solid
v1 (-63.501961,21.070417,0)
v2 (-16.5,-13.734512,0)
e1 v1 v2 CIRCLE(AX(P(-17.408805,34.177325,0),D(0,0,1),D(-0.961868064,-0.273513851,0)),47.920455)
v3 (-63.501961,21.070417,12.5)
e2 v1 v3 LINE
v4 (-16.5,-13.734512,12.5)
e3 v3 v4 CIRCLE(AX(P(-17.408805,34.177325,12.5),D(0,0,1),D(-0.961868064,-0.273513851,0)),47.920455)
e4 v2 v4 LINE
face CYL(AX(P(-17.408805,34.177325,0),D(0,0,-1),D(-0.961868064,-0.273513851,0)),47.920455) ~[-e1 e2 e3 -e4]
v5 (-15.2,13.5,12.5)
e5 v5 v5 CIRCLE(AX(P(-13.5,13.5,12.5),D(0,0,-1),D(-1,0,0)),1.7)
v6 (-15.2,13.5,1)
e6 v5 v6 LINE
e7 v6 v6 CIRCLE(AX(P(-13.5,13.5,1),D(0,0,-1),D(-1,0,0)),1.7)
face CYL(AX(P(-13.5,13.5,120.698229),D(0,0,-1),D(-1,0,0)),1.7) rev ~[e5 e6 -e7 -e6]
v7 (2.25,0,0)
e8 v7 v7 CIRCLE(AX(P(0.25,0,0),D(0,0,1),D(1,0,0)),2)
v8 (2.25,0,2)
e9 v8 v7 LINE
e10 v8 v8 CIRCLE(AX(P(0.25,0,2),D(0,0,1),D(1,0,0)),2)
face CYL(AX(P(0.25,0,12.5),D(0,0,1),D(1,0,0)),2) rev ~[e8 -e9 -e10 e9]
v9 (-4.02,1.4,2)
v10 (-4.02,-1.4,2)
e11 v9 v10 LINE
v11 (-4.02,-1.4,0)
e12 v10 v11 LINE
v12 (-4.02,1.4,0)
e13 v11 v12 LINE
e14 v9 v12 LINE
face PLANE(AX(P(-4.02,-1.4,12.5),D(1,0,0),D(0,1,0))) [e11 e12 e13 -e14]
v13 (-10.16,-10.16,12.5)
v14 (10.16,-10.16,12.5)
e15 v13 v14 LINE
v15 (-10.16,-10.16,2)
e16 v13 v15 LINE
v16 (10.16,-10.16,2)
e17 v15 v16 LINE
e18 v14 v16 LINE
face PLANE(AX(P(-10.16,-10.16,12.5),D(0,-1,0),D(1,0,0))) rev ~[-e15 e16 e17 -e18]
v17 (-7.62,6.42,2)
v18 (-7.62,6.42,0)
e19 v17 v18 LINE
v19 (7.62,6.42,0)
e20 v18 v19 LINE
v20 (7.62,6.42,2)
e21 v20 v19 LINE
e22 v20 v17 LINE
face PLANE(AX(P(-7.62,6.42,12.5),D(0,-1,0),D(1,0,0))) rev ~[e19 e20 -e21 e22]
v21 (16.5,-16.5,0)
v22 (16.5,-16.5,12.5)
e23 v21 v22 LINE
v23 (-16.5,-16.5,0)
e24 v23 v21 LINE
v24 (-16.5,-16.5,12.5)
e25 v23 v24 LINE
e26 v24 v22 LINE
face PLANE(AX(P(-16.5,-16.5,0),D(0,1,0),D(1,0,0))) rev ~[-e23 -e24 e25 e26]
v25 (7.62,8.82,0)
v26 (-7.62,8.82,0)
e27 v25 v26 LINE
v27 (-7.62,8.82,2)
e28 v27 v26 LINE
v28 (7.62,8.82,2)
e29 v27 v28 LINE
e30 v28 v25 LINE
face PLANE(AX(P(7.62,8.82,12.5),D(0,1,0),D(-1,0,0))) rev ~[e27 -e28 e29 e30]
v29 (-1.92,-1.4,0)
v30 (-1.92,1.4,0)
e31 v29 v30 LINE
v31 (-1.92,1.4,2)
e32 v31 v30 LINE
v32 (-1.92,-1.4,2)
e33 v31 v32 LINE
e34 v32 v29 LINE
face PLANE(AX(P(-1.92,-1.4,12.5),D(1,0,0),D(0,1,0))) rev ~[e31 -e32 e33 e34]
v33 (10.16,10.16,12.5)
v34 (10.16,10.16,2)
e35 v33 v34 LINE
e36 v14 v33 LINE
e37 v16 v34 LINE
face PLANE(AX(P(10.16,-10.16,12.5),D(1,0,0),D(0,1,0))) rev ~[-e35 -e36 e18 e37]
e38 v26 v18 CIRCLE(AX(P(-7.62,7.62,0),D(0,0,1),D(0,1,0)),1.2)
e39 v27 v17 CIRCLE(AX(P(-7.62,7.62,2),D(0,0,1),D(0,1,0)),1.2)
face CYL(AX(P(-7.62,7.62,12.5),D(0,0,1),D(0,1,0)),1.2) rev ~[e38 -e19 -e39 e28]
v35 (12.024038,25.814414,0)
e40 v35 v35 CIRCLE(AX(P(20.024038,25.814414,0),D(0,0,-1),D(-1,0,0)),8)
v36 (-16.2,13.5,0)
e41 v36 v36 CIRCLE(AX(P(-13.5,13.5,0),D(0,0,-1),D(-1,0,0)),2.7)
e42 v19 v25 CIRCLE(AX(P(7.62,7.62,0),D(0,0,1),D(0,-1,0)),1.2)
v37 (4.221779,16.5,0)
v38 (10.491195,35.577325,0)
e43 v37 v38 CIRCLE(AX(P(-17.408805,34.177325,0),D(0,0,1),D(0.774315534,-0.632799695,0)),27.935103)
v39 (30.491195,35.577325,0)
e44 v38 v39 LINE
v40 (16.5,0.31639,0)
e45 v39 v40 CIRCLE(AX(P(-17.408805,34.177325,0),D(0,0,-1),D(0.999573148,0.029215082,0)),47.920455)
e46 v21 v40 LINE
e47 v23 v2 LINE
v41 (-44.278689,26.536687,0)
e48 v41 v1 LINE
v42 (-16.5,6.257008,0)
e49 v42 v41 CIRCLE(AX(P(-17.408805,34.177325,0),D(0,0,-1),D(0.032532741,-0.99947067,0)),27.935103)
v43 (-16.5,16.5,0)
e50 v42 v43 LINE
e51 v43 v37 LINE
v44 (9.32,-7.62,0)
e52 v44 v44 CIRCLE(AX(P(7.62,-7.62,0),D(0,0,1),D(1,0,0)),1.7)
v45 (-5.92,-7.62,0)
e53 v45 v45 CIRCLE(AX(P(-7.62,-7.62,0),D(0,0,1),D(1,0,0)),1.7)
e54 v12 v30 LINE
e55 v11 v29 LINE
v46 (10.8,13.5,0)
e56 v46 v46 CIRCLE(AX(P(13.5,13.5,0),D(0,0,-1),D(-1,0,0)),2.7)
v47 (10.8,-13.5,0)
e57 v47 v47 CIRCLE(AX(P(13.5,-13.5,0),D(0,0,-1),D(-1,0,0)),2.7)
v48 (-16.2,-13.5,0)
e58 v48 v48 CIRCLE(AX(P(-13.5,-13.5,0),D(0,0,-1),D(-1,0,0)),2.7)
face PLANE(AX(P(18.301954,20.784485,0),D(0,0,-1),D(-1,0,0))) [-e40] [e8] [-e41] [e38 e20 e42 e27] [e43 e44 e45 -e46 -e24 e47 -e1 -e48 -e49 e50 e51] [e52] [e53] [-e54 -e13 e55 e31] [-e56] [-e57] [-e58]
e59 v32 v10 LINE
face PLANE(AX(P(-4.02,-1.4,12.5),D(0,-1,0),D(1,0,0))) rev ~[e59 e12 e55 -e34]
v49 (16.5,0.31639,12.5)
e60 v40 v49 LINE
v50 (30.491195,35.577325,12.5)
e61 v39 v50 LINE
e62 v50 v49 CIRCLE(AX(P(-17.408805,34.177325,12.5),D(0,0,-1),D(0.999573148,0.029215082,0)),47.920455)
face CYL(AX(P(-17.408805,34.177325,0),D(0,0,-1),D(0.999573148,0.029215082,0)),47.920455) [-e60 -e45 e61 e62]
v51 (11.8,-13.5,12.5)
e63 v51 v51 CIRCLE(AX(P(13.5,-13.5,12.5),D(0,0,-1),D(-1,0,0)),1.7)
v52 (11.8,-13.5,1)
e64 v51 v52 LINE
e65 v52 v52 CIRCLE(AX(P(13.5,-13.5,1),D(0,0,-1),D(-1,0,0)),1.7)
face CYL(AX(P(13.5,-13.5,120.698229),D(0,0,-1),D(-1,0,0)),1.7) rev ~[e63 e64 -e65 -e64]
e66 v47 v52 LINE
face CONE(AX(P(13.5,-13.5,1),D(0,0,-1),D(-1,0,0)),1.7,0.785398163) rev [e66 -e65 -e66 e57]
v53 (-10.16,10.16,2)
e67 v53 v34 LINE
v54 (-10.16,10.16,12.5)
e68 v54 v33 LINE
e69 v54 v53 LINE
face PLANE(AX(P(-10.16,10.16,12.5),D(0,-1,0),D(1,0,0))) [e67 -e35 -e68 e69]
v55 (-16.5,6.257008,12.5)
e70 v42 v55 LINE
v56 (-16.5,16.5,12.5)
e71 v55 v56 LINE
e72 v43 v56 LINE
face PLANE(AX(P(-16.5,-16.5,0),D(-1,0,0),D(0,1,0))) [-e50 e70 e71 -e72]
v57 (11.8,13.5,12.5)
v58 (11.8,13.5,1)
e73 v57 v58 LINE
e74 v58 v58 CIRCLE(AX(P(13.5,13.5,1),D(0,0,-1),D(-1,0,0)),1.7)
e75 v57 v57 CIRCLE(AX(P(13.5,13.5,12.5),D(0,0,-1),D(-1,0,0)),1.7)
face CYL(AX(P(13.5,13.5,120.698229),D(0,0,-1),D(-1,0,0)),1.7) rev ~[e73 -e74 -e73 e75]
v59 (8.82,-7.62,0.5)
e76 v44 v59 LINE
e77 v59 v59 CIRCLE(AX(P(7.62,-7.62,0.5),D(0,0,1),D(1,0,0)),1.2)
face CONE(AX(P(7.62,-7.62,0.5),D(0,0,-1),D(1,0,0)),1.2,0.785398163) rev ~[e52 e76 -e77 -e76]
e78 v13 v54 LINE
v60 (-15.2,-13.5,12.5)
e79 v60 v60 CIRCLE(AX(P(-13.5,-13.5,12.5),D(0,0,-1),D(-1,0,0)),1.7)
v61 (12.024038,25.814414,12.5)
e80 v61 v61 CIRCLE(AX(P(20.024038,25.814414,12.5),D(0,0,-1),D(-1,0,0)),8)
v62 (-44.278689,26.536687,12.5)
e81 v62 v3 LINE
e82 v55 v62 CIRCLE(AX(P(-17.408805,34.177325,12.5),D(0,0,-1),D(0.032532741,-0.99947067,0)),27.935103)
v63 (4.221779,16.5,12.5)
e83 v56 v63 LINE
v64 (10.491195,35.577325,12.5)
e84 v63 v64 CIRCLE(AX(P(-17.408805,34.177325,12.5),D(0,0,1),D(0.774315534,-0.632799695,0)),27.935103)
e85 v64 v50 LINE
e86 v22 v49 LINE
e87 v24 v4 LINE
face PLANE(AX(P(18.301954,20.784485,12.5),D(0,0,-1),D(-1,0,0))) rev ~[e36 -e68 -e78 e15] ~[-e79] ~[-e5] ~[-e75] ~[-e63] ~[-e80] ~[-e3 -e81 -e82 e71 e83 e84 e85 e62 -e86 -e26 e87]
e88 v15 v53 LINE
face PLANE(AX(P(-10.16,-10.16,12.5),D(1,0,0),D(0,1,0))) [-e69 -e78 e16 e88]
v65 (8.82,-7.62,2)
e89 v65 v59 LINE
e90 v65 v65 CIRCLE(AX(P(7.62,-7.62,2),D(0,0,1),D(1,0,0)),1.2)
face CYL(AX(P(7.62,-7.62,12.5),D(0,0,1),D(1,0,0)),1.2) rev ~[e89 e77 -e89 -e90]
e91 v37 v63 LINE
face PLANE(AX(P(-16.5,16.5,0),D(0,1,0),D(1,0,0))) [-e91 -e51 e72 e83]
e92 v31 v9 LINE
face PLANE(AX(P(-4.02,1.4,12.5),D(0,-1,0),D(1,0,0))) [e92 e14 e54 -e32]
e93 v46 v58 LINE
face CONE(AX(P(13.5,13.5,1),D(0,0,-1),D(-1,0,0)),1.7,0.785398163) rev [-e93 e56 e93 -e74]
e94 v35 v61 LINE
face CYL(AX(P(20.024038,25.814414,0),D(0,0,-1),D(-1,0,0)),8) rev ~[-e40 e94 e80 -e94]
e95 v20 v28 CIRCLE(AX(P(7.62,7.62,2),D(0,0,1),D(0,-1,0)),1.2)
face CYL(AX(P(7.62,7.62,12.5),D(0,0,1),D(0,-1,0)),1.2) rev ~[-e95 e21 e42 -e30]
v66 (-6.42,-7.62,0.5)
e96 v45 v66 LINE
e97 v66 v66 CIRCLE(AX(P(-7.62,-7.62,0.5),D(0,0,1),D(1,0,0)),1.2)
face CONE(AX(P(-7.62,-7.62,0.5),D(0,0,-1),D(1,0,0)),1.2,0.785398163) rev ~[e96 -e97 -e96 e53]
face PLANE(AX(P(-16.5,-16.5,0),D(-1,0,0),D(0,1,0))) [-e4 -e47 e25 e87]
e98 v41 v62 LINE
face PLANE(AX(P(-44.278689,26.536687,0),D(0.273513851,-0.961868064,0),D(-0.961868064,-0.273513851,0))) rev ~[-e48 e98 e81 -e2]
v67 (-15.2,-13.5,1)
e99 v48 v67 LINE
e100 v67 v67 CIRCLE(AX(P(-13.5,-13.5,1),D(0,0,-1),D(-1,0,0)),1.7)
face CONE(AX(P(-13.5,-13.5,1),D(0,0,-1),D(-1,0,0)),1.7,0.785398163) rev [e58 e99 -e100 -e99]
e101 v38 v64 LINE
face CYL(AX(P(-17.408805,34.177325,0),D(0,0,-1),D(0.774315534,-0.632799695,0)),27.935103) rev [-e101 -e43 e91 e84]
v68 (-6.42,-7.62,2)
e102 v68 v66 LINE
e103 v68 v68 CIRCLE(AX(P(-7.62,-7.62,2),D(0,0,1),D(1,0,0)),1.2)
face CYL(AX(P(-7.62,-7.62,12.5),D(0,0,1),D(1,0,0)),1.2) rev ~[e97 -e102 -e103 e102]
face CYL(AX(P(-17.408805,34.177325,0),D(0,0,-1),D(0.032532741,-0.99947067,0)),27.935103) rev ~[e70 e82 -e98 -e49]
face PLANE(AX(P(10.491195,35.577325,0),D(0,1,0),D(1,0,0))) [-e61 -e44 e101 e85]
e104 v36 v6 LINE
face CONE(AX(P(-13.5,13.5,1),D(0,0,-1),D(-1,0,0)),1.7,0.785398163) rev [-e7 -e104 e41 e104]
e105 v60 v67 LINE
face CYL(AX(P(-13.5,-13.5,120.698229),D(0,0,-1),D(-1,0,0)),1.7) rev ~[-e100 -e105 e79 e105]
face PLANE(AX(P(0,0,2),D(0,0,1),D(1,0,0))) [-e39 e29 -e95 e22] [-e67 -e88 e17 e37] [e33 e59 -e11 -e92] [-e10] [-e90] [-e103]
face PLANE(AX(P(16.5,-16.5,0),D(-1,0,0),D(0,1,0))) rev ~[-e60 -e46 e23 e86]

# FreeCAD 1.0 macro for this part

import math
import FreeCAD as App
import Part
import Sketcher

V = App.Vector
Q = App.Units.Quantity


def edges_at(feature, points):
    """Names of the edges that pass closest to the given points."""
    edges = feature.Shape.Edges
    near = lambda p: min(range(len(edges)), key=lambda i: edges[i].distToShape(Part.Vertex(*p))[0])
    return sorted({f"Edge{near(p) + 1}" for p in points})


def add_polygon(sketch, points):
    """Adds a closed chain of lines whose ends are joined by coincident constraints."""
    first, n = sketch.GeometryCount, len(points)
    for a, b in zip(points, points[1:] + points[:1]):
        sketch.addGeometry(Part.LineSegment(App.Vector(*a, 0), App.Vector(*b, 0)), False)
    for i in range(n):
        sketch.addConstraint(Sketcher.Constraint("Coincident", first + i, 2, first + (i + 1) % n, 1))

doc = App.newDocument("Part")
body = doc.addObject("PartDesign::Body", "Body")

sketch1 = body.newObject("Sketcher::SketchObject", "Sketch")
sketch1.AttachmentSupport = (doc.getObject("XY_Plane"), [""])
sketch1.MapMode = "FlatFace"
add_polygon(sketch1, [(-16.5, 16.5), (-16.5, -16.5), (16.5, -16.5), (16.5, 16.5)])
sketch1.addConstraint(Sketcher.Constraint("Vertical", 0))
sketch1.addConstraint(Sketcher.Constraint("Horizontal", 1))
sketch1.addConstraint(Sketcher.Constraint("Vertical", 2))
sketch1.addConstraint(Sketcher.Constraint("Horizontal", 3))
sketch1.addConstraint(Sketcher.Constraint("Symmetric", 0, 2, 2, 2, -1, 1))
sketch1.addConstraint(Sketcher.Constraint("Equal", 3, 0))
sketch1.addConstraint(Sketcher.Constraint("DistanceX", 1, 1, 1, 2, Q("33 mm")))
pad1 = body.newObject("PartDesign::Pad", "Pad")
pad1.Profile = sketch1
pad1.Length = 12.5

sketch2 = body.newObject("Sketcher::SketchObject", "Sketch001")
sketch2.AttachmentSupport = (doc.getObject("XY_Plane"), [""])
sketch2.MapMode = "FlatFace"
sketch2.AttachmentOffset = App.Placement(V(0, 0, 12.5), App.Rotation())
sketch2.addGeometry(Part.Circle(V(0.25, 0, 0), V(0, 0, 1), 2), False)
add_polygon(sketch2, [(-4.02, 1.4), (-4.02, -1.4), (-1.92, -1.4), (-1.92, 1.4)])
sketch2.addConstraint(Sketcher.Constraint("Vertical", 1))
sketch2.addConstraint(Sketcher.Constraint("Horizontal", 2))
sketch2.addConstraint(Sketcher.Constraint("Vertical", 3))
sketch2.addConstraint(Sketcher.Constraint("Horizontal", 4))
sketch2.addConstraint(Sketcher.Constraint("PointOnObject", 0, 3, -1))
sketch2.addConstraint(Sketcher.Constraint("Diameter", 0, Q("4 mm")))
sketch2.addConstraint(Sketcher.Constraint("DistanceX", 2, 1, 2, 2, Q("2.1 mm")))
sketch2.addConstraint(Sketcher.Constraint("DistanceY", 1, 2, 1, 1, Q("2.8 mm")))
sketch2.addConstraint(Sketcher.Constraint("DistanceY", 1, 2, -1, 1, Q("1.4 mm")))
sketch2.addConstraint(Sketcher.Constraint("DistanceX", -1, 1, 0, 3, Q("0.25 mm")))
sketch2.addConstraint(Sketcher.Constraint("DistanceX", 1, 2, -1, 1, Q("4.02 mm")))
pocket1 = body.newObject("PartDesign::Pocket", "Pocket")
pocket1.Profile = sketch2
pocket1.Type = "ThroughAll"

sketch3 = body.newObject("Sketcher::SketchObject", "Sketch002")
sketch3.AttachmentSupport = (doc.getObject("XY_Plane"), [""])
sketch3.MapMode = "FlatFace"
sketch3.AttachmentOffset = App.Placement(V(0, 0, 12.5), App.Rotation())
sketch3.addGeometry(Part.LineSegment(V(7.62, 8.82, 0), V(-7.62, 8.82, 0)), False)
sketch3.addGeometry(Part.ArcOfCircle(Part.Circle(V(-7.62, 7.62, 0), V(0, 0, 1), 1.2), math.radians(90), math.radians(270)), False)
sketch3.addGeometry(Part.LineSegment(V(-7.62, 6.42, 0), V(7.62, 6.42, 0)), False)
sketch3.addGeometry(Part.ArcOfCircle(Part.Circle(V(7.62, 7.62, 0), V(0, 0, 1), 1.2), math.radians(-90), math.radians(90)), False)
sketch3.addGeometry(Part.Circle(V(7.62, -7.62, 0), V(0, 0, 1), 1.2), False)
sketch3.addGeometry(Part.Circle(V(-7.62, -7.62, 0), V(0, 0, 1), 1.2), False)
sketch3.addConstraint(Sketcher.Constraint("Tangent", 0, 2, 1, 1))
sketch3.addConstraint(Sketcher.Constraint("Tangent", 1, 2, 2, 1))
sketch3.addConstraint(Sketcher.Constraint("Tangent", 2, 2, 3, 1))
sketch3.addConstraint(Sketcher.Constraint("Tangent", 3, 2, 0, 1))
sketch3.addConstraint(Sketcher.Constraint("Horizontal", 0))
sketch3.addConstraint(Sketcher.Constraint("Horizontal", 2))
sketch3.addConstraint(Sketcher.Constraint("Equal", 3, 4))
sketch3.addConstraint(Sketcher.Constraint("Equal", 4, 5))
sketch3.addConstraint(Sketcher.Constraint("Symmetric", 1, 3, 4, 3, -1, 1))
sketch3.addConstraint(Sketcher.Constraint("Symmetric", 3, 3, 5, 3, -1, 1))
sketch3.addConstraint(Sketcher.Constraint("Vertical", 3, 3, 4, 3))
sketch3.addConstraint(Sketcher.Constraint("Diameter", 4, Q("2.4 mm")))
sketch3.addConstraint(Sketcher.Constraint("DistanceX", 0, 2, 0, 1, Q("15.24 mm")))
sketch3.addConstraint(Sketcher.Constraint("DistanceY", -1, 1, 1, 3, Q("7.62 mm")))
pocket2 = body.newObject("PartDesign::Pocket", "Pocket001")
pocket2.Profile = sketch3
pocket2.Type = "ThroughAll"

sketch4 = body.newObject("Sketcher::SketchObject", "Sketch003")
sketch4.AttachmentSupport = (doc.getObject("XY_Plane"), [""])
sketch4.MapMode = "FlatFace"
sketch4.AttachmentOffset = App.Placement(V(0, 0, 12.5), App.Rotation())
add_polygon(sketch4, [(-10.16, 10.16), (-10.16, -10.16), (10.16, -10.16), (10.16, 10.16)])
sketch4.addConstraint(Sketcher.Constraint("Vertical", 0))
sketch4.addConstraint(Sketcher.Constraint("Horizontal", 1))
sketch4.addConstraint(Sketcher.Constraint("Vertical", 2))
sketch4.addConstraint(Sketcher.Constraint("Horizontal", 3))
sketch4.addConstraint(Sketcher.Constraint("Symmetric", 0, 2, 2, 2, -1, 1))
sketch4.addConstraint(Sketcher.Constraint("Equal", 3, 0))
sketch4.addConstraint(Sketcher.Constraint("DistanceX", 1, 1, 1, 2, Q("20.32 mm")))
pocket3 = body.newObject("PartDesign::Pocket", "Pocket002")
pocket3.Profile = sketch4
pocket3.Length = 10.5

sketch5 = body.newObject("Sketcher::SketchObject", "Sketch004")
sketch5.AttachmentSupport = (doc.getObject("XY_Plane"), [""])
sketch5.MapMode = "FlatFace"
sketch5.addGeometry(Part.LineSegment(V(10.491195, 35.577325, 0), V(30.491195, 35.577325, 0)), False)
sketch5.addGeometry(Part.ArcOfCircle(Part.Circle(V(-17.408805, 34.177325, 0), V(0, 0, 1), 47.920455), math.radians(-44.959528), math.radians(1.674139)), False)
sketch5.addGeometry(Part.LineSegment(V(16.5, 0.31639, 0), V(16.5, 16.5, 0)), False)
sketch5.addGeometry(Part.LineSegment(V(16.5, 16.5, 0), V(4.221779, 16.5, 0)), False)
sketch5.addGeometry(Part.ArcOfCircle(Part.Circle(V(-17.408805, 34.177325, 0), V(0, 0, 1), 27.935103), math.radians(-39.256982), math.radians(2.872648)), False)
sketch5.addGeometry(Part.Circle(V(20.024038, 25.814414, 0), V(0, 0, 1), 8), False)
sketch5.addGeometry(Part.LineSegment(V(-63.501961, 21.070417, 0), V(-44.278689, 26.536687, 0)), False)
sketch5.addGeometry(Part.ArcOfCircle(Part.Circle(V(-17.408805, 34.177325, 0), V(0, 0, 1), 27.935103), math.radians(-164.126531), math.radians(-88.135682)), False)
sketch5.addGeometry(Part.LineSegment(V(-16.5, 6.257008, 0), V(-16.5, -13.734512, 0)), False)
sketch5.addGeometry(Part.ArcOfCircle(Part.Circle(V(-17.408805, 34.177325, 0), V(0, 0, 1), 47.920455), math.radians(-164.126531), math.radians(-88.913328)), False)
sketch5.addConstraint(Sketcher.Constraint("Coincident", 0, 2, 1, 2))
sketch5.addConstraint(Sketcher.Constraint("Coincident", 1, 1, 2, 1))
sketch5.addConstraint(Sketcher.Constraint("Coincident", 2, 2, 3, 1))
sketch5.addConstraint(Sketcher.Constraint("Coincident", 3, 2, 4, 1))
sketch5.addConstraint(Sketcher.Constraint("Coincident", 4, 2, 0, 1))
sketch5.addConstraint(Sketcher.Constraint("Coincident", 6, 2, 7, 1))
sketch5.addConstraint(Sketcher.Constraint("Coincident", 7, 2, 8, 1))
sketch5.addConstraint(Sketcher.Constraint("Coincident", 8, 2, 9, 2))
sketch5.addConstraint(Sketcher.Constraint("Coincident", 9, 1, 6, 1))
sketch5.addConstraint(Sketcher.Constraint("Horizontal", 0))
sketch5.addConstraint(Sketcher.Constraint("Vertical", 2))
sketch5.addConstraint(Sketcher.Constraint("Horizontal", 3))
sketch5.addConstraint(Sketcher.Constraint("Vertical", 8))
sketch5.addConstraint(Sketcher.Constraint("Coincident", 4, 3, 1, 3))
sketch5.addConstraint(Sketcher.Constraint("Coincident", 7, 3, 1, 3))
sketch5.addConstraint(Sketcher.Constraint("Coincident", 9, 3, 1, 3))
sketch5.addConstraint(Sketcher.Constraint("Equal", 4, 7))
sketch5.addConstraint(Sketcher.Constraint("Equal", 1, 9))
sketch5.addConstraint(Sketcher.Constraint("Diameter", 5, Q("16 mm")))
sketch5.addConstraint(Sketcher.Constraint("DistanceX", 0, 1, 0, 2, Q("20 mm")))
sketch5.addConstraint(Sketcher.Constraint("DistanceX", 8, 2, 1, 1, Q("33 mm")))
sketch5.addConstraint(Sketcher.Constraint("DistanceX", -1, 1, 1, 1, Q("16.5 mm")))
sketch5.addConstraint(Sketcher.Constraint("DistanceY", -1, 1, 2, 2, Q("16.5 mm")))
sketch5.addConstraint(Sketcher.Constraint("DistanceX", 4, 3, 0, 2, Q("47.9 mm")))
sketch5.addConstraint(Sketcher.Constraint("DistanceY", 4, 3, 0, 2, Q("1.4 mm")))
sketch5.addConstraint(Sketcher.Constraint("DistanceX", 3, 2, 3, 1, Q("12.278221 mm")))
sketch5.addConstraint(Sketcher.Constraint("DistanceY", 2, 1, 2, 2, Q("16.18361 mm")))
sketch5.addConstraint(Sketcher.Constraint("DistanceX", 6, 2, -1, 1, Q("44.278689 mm")))
sketch5.addConstraint(Sketcher.Constraint("DistanceX", 9, 1, -1, 1, Q("63.501961 mm")))
sketch5.addConstraint(Sketcher.Constraint("DistanceY", 5, 3, 4, 3, Q("8.362911 mm")))
sketch5.addConstraint(Sketcher.Constraint("DistanceX", 3, 2, 5, 3, Q("15.802259 mm")))
pad2 = body.newObject("PartDesign::Pad", "Pad001")
pad2.Profile = sketch5
pad2.Length = 12.5

sketch6 = body.newObject("Sketcher::SketchObject", "Sketch005")
sketch6.AttachmentSupport = (doc.getObject("XY_Plane"), [""])
sketch6.MapMode = "FlatFace"
sketch6.AttachmentOffset = App.Placement(V(0, 0, 12.5), App.Rotation())
sketch6.addGeometry(Part.Circle(V(-13.5, 13.5, 0), V(0, 0, 1), 1.7), False)
sketch6.addGeometry(Part.Circle(V(13.5, 13.5, 0), V(0, 0, 1), 1.7), False)
sketch6.addGeometry(Part.Circle(V(13.5, -13.5, 0), V(0, 0, 1), 1.7), False)
sketch6.addGeometry(Part.Circle(V(-13.5, -13.5, 0), V(0, 0, 1), 1.7), False)
sketch6.addConstraint(Sketcher.Constraint("Equal", 0, 1))
sketch6.addConstraint(Sketcher.Constraint("Equal", 1, 2))
sketch6.addConstraint(Sketcher.Constraint("Equal", 2, 3))
sketch6.addConstraint(Sketcher.Constraint("Symmetric", 0, 3, 2, 3, -1, 1))
sketch6.addConstraint(Sketcher.Constraint("Symmetric", 1, 3, 3, 3, -1, 1))
sketch6.addConstraint(Sketcher.Constraint("Symmetric", 0, 3, 1, 3, -2))
sketch6.addConstraint(Sketcher.Constraint("Diameter", 0, Q("3.4 mm")))
sketch6.addConstraint(Sketcher.Constraint("DistanceX", 0, 3, 1, 3, Q("27 mm")))
sketch6.addConstraint(Sketcher.Constraint("DistanceY", 2, 3, 1, 3, Q("27 mm")))
doc.recompute()
hole = body.newObject("PartDesign::Hole", "Hole")
hole.Profile = sketch6
hole.ThreadType = "None"
hole.Diameter = 3.4
hole.DepthType = "ThroughAll"
doc.recompute()

chamfer = body.newObject("PartDesign::Chamfer", "Chamfer")
chamfer.Base = (hole, edges_at(hole, [
    (-11.8, -13.5, 0),
    (15.2, -13.5, 0),
    (15.2, 13.5, 0),
    (-11.8, 13.5, 0),
]))
chamfer.Size = 1
doc.recompute()

chamfer2 = body.newObject("PartDesign::Chamfer", "Chamfer001")
chamfer2.Base = (chamfer, edges_at(chamfer, [(6.42, -7.62, 0), (-8.82, -7.62, 0)]))
chamfer2.Size = 0.5

doc.recompute()
